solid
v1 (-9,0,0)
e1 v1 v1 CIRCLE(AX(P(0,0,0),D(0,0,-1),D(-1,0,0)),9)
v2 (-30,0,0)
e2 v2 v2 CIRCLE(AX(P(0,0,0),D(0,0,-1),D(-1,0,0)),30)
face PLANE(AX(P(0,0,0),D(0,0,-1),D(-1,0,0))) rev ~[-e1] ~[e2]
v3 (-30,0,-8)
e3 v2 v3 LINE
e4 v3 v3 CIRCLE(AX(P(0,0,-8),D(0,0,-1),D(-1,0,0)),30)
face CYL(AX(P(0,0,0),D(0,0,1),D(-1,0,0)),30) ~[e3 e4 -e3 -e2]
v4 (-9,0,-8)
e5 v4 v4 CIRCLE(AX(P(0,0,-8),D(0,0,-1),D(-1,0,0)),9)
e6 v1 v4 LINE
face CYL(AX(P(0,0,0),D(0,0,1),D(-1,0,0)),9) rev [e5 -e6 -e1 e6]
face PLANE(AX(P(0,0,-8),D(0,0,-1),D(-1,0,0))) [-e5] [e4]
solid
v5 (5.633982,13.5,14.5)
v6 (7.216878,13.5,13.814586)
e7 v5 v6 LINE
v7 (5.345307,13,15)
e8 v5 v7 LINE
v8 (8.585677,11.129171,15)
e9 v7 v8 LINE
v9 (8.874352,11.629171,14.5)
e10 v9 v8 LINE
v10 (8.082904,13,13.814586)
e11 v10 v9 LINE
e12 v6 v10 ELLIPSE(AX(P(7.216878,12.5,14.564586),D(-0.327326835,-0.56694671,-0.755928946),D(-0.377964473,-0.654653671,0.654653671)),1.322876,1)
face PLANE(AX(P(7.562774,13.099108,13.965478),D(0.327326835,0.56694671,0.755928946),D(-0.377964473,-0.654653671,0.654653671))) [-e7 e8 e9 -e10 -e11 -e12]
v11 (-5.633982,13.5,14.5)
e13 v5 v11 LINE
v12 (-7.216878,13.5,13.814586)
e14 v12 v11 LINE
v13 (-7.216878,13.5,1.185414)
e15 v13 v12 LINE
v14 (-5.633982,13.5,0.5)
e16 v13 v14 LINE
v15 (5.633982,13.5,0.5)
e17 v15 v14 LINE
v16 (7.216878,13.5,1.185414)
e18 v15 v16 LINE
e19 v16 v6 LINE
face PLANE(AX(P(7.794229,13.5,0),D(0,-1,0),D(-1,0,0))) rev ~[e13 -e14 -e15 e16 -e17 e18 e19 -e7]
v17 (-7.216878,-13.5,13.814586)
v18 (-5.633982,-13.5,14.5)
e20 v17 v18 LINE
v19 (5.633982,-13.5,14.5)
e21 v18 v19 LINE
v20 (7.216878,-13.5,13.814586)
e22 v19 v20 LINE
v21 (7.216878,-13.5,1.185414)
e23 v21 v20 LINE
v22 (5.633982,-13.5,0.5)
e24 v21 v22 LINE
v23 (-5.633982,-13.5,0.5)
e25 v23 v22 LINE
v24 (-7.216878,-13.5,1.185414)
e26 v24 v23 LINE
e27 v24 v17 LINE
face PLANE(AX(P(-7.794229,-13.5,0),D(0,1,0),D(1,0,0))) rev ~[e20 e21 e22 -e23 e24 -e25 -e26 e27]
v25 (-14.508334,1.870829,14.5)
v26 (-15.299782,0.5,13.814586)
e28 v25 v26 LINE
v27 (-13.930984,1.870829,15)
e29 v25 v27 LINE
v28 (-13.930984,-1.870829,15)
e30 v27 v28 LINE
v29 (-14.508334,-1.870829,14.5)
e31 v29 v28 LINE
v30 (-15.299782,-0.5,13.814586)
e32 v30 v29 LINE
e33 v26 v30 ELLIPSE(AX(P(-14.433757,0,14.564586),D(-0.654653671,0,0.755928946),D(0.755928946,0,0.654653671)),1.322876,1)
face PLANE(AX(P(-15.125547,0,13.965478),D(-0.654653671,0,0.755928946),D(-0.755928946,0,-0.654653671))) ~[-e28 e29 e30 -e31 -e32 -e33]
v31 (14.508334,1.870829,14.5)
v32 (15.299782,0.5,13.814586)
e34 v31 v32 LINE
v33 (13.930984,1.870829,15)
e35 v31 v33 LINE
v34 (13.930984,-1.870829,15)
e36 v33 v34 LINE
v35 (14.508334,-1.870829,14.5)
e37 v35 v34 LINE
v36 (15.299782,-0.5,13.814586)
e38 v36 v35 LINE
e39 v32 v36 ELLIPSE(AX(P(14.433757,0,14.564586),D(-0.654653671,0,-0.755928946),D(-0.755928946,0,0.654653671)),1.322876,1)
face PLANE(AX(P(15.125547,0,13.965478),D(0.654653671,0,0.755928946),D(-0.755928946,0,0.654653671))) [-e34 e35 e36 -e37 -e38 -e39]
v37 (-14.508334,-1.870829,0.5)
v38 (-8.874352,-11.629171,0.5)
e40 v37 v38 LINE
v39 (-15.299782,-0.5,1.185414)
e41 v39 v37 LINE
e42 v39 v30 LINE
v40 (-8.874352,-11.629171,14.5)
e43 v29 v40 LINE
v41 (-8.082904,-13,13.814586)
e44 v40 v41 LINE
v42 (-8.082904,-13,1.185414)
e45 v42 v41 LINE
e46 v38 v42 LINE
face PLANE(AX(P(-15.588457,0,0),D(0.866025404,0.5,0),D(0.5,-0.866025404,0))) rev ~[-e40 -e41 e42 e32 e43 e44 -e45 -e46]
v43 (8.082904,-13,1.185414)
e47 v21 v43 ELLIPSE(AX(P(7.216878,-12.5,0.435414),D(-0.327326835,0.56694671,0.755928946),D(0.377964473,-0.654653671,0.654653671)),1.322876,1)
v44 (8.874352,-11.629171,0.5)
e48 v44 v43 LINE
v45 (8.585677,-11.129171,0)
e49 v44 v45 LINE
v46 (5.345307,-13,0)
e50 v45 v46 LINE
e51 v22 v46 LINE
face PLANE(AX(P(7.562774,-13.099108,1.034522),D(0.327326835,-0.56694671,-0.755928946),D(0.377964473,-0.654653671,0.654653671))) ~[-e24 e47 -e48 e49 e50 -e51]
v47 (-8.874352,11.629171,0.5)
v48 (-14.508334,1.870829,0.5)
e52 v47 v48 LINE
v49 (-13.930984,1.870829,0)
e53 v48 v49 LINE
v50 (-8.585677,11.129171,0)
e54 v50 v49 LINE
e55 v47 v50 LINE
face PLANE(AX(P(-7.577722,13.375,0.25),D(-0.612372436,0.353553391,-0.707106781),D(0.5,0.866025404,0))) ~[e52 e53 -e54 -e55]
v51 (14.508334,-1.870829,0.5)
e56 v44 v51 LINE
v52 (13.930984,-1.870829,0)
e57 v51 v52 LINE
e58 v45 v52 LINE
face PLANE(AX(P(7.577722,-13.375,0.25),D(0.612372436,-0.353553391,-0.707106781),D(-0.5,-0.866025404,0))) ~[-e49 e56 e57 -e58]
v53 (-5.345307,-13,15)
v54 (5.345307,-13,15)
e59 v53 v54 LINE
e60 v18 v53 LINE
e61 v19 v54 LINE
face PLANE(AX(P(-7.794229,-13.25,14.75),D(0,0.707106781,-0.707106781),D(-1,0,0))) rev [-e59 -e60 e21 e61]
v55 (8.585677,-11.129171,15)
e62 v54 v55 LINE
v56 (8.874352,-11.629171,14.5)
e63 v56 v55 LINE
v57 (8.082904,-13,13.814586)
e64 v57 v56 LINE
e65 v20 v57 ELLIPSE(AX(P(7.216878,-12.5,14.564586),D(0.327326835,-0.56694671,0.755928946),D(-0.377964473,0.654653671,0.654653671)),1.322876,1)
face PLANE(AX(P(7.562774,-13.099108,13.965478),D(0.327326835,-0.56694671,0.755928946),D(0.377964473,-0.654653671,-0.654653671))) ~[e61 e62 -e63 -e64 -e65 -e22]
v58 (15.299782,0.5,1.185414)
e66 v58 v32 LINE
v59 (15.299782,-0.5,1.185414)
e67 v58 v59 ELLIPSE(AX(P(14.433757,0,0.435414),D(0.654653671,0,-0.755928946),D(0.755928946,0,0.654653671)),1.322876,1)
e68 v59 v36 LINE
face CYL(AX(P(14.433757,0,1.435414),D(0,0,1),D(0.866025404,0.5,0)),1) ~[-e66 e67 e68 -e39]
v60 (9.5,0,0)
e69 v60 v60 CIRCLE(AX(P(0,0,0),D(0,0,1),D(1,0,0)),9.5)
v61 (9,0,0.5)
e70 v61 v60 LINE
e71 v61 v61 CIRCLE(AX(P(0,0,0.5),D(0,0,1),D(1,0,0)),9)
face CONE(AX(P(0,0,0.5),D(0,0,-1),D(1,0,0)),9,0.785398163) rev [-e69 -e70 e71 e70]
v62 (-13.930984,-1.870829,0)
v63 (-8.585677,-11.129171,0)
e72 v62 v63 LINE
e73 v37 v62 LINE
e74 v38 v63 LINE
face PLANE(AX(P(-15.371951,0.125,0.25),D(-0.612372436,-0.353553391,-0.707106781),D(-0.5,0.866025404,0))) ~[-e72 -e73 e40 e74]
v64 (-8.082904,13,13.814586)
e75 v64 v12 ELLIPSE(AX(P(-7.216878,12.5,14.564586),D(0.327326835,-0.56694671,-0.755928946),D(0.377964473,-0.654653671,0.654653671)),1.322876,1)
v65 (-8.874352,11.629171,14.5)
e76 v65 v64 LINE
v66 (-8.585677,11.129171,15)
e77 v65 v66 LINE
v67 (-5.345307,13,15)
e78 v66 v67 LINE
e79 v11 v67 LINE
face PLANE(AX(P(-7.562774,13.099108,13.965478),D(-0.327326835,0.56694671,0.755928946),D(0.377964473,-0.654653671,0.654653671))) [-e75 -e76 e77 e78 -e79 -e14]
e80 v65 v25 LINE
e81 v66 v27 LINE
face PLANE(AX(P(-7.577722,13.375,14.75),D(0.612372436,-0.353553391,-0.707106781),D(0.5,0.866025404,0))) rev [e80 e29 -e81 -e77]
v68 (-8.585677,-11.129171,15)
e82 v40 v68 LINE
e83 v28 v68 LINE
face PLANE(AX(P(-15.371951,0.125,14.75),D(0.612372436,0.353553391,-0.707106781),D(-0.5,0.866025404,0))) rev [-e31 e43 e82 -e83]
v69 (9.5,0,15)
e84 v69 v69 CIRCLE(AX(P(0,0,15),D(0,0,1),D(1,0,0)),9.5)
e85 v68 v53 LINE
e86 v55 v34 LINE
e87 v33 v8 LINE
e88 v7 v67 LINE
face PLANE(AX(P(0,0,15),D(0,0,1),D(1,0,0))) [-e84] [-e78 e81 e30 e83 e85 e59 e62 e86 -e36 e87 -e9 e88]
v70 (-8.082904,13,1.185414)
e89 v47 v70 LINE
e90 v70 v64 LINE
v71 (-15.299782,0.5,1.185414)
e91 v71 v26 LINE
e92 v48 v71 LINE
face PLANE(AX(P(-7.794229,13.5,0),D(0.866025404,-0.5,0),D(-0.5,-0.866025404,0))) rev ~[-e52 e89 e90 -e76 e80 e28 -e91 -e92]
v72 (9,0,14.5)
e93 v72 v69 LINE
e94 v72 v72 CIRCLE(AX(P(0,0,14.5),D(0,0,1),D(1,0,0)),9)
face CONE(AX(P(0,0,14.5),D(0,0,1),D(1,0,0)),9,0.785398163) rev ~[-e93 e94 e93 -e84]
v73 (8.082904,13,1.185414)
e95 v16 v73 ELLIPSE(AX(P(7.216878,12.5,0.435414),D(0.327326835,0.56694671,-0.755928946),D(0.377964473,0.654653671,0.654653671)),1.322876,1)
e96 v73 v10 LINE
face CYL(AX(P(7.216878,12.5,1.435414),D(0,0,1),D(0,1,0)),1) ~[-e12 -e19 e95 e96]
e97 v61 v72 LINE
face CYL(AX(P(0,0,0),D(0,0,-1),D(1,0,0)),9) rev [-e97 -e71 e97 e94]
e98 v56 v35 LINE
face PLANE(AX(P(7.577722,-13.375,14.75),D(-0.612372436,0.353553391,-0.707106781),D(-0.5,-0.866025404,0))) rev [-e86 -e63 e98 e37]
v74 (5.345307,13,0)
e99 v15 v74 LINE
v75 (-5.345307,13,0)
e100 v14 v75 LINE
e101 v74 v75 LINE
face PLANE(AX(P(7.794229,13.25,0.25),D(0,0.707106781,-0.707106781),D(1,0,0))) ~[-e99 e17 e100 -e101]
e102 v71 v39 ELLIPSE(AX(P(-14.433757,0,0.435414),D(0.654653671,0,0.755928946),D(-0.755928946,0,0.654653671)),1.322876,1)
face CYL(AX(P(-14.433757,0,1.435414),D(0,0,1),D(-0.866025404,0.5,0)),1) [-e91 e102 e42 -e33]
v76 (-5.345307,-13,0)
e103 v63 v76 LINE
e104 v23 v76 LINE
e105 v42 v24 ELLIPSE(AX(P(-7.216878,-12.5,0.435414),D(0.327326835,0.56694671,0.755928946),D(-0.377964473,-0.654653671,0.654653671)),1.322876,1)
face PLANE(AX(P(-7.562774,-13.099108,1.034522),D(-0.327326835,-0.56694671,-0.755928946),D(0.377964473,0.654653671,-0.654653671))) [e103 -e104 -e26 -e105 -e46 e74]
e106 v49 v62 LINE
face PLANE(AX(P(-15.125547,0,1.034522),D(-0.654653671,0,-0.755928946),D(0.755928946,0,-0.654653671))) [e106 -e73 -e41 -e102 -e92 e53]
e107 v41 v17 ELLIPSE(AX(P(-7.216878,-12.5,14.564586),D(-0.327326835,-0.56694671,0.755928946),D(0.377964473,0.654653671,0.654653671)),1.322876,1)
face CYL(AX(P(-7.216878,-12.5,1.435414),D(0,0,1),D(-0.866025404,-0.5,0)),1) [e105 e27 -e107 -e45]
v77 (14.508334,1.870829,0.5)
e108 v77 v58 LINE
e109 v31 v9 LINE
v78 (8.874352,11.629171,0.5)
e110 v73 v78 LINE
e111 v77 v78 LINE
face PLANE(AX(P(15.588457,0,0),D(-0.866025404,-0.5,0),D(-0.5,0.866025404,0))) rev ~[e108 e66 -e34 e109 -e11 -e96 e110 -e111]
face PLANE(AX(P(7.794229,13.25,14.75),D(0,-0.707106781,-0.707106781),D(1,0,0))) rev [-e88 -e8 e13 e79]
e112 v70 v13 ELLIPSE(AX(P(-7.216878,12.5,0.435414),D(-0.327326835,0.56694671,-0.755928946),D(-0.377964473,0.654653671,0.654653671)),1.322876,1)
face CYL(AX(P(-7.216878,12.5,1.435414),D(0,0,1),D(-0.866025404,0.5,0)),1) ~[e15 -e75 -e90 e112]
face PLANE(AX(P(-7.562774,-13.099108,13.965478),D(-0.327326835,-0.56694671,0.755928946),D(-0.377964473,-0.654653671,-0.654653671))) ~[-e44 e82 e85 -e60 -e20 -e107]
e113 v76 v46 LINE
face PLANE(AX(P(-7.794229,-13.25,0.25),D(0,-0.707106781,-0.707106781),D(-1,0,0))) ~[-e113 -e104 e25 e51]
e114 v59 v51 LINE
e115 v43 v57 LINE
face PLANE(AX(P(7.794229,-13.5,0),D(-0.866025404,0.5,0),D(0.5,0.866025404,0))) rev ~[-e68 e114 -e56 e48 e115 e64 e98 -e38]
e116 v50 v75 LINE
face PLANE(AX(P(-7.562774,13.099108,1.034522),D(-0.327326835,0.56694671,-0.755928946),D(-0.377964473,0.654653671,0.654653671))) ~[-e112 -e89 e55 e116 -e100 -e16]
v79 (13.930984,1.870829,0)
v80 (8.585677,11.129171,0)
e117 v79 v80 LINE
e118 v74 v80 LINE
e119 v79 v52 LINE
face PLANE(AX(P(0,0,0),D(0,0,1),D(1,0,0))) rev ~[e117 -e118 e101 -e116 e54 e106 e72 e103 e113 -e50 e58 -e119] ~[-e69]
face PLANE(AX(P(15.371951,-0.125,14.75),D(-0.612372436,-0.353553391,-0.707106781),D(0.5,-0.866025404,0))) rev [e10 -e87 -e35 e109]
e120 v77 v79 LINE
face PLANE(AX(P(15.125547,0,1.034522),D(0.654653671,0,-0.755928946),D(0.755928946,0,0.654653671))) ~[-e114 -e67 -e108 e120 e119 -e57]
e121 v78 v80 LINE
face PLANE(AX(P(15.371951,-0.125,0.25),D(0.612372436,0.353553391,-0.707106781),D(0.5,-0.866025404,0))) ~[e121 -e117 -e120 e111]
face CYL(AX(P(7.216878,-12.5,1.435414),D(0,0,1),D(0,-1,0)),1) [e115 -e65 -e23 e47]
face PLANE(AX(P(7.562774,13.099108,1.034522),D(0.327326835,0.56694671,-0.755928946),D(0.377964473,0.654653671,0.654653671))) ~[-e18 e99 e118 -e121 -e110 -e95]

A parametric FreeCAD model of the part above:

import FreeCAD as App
import Part
import Sketcher
Q = App.Units.Quantity


def edges_at(feature, points):
    """Names of the edges that pass closest to the given points."""
    edges = feature.Shape.Edges
    near = lambda p: min(range(len(edges)), key=lambda i: edges[i].distToShape(Part.Vertex(*p))[0])
    return sorted({f"Edge{near(p) + 1}" for p in points})

doc = App.newDocument("Part")
body = doc.addObject("PartDesign::Body", "Body")

sketch1 = doc.addObject("Sketcher::SketchObject", "Sketch")
body.addObject(sketch1)
sketch1.AttachmentSupport = (doc.XY_Plane, [""])
sketch1.MapMode = "FlatFace"
sketch1.addGeometry(Part.LineSegment(App.Vector(-8, 14, 0), App.Vector(-16, 0, 0)), False)
sketch1.addGeometry(Part.LineSegment(App.Vector(-16, 0, 0), App.Vector(-8, -14, 0)), False)
sketch1.addGeometry(Part.LineSegment(App.Vector(-8, -14, 0), App.Vector(8, -14, 0)), False)
sketch1.addGeometry(Part.LineSegment(App.Vector(8, -14, 0), App.Vector(16, 0, 0)), False)
sketch1.addGeometry(Part.LineSegment(App.Vector(16, 0, 0), App.Vector(8, 14, 0)), False)
sketch1.addGeometry(Part.LineSegment(App.Vector(8, 14, 0), App.Vector(-8, 14, 0)), False)
sketch1.addGeometry(Part.Circle(App.Vector(0, 0, 0), App.Vector(0, 0, 1), 9), False)
sketch1.addConstraint(Sketcher.Constraint("Coincident", 0, 2, 1, 1))
sketch1.addConstraint(Sketcher.Constraint("Coincident", 1, 2, 2, 1))
sketch1.addConstraint(Sketcher.Constraint("Coincident", 2, 2, 3, 1))
sketch1.addConstraint(Sketcher.Constraint("Coincident", 3, 2, 4, 1))
sketch1.addConstraint(Sketcher.Constraint("Coincident", 4, 2, 5, 1))
sketch1.addConstraint(Sketcher.Constraint("Coincident", 5, 2, 0, 1))
sketch1.addConstraint(Sketcher.Constraint("Horizontal", 2))
sketch1.addConstraint(Sketcher.Constraint("Horizontal", 5))
sketch1.addConstraint(Sketcher.Constraint("Coincident", 6, 3, -1, 1))
sketch1.addConstraint(Sketcher.Constraint("Symmetric", 0, 2, 3, 2, -1, 1))
sketch1.addConstraint(Sketcher.Constraint("Symmetric", 1, 2, 4, 2, -1, 1))
sketch1.addConstraint(Sketcher.Constraint("PointOnObject", 0, 2, -1))
sketch1.addConstraint(Sketcher.Constraint("Parallel", 0, 3))
sketch1.addConstraint(Sketcher.Constraint("Vertical", 2, 2, 4, 2))
sketch1.addConstraint(Sketcher.Constraint("Diameter", 6, 18.0))
sketch1.addConstraint(Sketcher.Constraint("Angle", 0, Q("-120 deg")))
sketch1.addConstraint(Sketcher.Constraint("DistanceY", 2, 2, 4, 2, 27.0))
sketch1.addConstraint(Sketcher.Constraint("DistanceX", 2, 1, 2, 2, 15.588457))
pad1 = doc.addObject("PartDesign::Pad", "Pad")
body.addObject(pad1)
pad1.Profile = sketch1
pad1.Length = 15
doc.recompute()

chamfer = doc.addObject("PartDesign::Chamfer", "Chamfer")
body.addObject(chamfer)
chamfer.Base = (pad1, edges_at(pad1, [
    (-11.691, -6.75, 15),
    (0, -13.5, 15),
    (-9, 0, 0),
    (-9, 0, 15),
    (11.691, -6.75, 15),
    (11.691, 6.75, 15),
    (0, 13.5, 15),
    (11.691, 6.75, 0),
    (11.691, -6.75, 0),
    (0, -13.5, 0),
    (-11.691, -6.75, 0),
    (-11.691, 6.75, 0),
    (0, 13.5, 0),
    (-11.691, 6.75, 15),
]))
chamfer.Size = 0.5
doc.recompute()

chamfer2 = doc.addObject("PartDesign::Chamfer", "Chamfer001")
body.addObject(chamfer2)
chamfer2.Base = (chamfer, edges_at(chamfer, [
    (15.3, 0, 0.25),
    (7.65, -13.25, 0.25),
    (7.65, 13.25, 0.25),
    (-7.65, -13.25, 0.25),
    (-7.65, 13.25, 0.25),
    (-15.3, 0, 0.25),
    (-7.65, -13.25, 14.75),
    (-15.3, 0, 14.75),
    (7.65, -13.25, 14.75),
    (-7.65, 13.25, 14.75),
    (15.3, 0, 14.75),
    (7.65, 13.25, 14.75),
]))
chamfer2.Size = 2
doc.recompute()

fillet = doc.addObject("PartDesign::Fillet", "Fillet")
body.addObject(fillet)
fillet.Base = (chamfer2, edges_at(chamfer2, [
    (-15.588, 0, 7.5),
    (-7.794, -13.5, 7.5),
    (-7.794, 13.5, 7.5),
    (7.794, -13.5, 7.5),
    (15.588, 0, 7.5),
    (7.794, 13.5, 7.5),
]))
fillet.Radius = 1
body2 = doc.addObject("PartDesign::Body", "Body001")

sketch2 = doc.addObject("Sketcher::SketchObject", "Sketch001")
body2.addObject(sketch2)
sketch2.AttachmentSupport = (doc.getObject("XY_Plane001"), [""])
sketch2.MapMode = "FlatFace"
sketch2.addGeometry(Part.Circle(App.Vector(0, 0, 0), App.Vector(0, 0, 1), 30), False)
sketch2.addGeometry(Part.Circle(App.Vector(0, 0, 0), App.Vector(0, 0, 1), 9), False)
sketch2.addConstraint(Sketcher.Constraint("Coincident", 0, 3, -1, 1))
sketch2.addConstraint(Sketcher.Constraint("Coincident", 1, 3, -1, 1))
sketch2.addConstraint(Sketcher.Constraint("Diameter", 0, 60.0))
sketch2.addConstraint(Sketcher.Constraint("Diameter", 1, 18.0))
pad2 = doc.addObject("PartDesign::Pad", "Pad001")
body2.addObject(pad2)
pad2.Profile = sketch2
pad2.Length = 8
pad2.Reversed = True

doc.recompute()
